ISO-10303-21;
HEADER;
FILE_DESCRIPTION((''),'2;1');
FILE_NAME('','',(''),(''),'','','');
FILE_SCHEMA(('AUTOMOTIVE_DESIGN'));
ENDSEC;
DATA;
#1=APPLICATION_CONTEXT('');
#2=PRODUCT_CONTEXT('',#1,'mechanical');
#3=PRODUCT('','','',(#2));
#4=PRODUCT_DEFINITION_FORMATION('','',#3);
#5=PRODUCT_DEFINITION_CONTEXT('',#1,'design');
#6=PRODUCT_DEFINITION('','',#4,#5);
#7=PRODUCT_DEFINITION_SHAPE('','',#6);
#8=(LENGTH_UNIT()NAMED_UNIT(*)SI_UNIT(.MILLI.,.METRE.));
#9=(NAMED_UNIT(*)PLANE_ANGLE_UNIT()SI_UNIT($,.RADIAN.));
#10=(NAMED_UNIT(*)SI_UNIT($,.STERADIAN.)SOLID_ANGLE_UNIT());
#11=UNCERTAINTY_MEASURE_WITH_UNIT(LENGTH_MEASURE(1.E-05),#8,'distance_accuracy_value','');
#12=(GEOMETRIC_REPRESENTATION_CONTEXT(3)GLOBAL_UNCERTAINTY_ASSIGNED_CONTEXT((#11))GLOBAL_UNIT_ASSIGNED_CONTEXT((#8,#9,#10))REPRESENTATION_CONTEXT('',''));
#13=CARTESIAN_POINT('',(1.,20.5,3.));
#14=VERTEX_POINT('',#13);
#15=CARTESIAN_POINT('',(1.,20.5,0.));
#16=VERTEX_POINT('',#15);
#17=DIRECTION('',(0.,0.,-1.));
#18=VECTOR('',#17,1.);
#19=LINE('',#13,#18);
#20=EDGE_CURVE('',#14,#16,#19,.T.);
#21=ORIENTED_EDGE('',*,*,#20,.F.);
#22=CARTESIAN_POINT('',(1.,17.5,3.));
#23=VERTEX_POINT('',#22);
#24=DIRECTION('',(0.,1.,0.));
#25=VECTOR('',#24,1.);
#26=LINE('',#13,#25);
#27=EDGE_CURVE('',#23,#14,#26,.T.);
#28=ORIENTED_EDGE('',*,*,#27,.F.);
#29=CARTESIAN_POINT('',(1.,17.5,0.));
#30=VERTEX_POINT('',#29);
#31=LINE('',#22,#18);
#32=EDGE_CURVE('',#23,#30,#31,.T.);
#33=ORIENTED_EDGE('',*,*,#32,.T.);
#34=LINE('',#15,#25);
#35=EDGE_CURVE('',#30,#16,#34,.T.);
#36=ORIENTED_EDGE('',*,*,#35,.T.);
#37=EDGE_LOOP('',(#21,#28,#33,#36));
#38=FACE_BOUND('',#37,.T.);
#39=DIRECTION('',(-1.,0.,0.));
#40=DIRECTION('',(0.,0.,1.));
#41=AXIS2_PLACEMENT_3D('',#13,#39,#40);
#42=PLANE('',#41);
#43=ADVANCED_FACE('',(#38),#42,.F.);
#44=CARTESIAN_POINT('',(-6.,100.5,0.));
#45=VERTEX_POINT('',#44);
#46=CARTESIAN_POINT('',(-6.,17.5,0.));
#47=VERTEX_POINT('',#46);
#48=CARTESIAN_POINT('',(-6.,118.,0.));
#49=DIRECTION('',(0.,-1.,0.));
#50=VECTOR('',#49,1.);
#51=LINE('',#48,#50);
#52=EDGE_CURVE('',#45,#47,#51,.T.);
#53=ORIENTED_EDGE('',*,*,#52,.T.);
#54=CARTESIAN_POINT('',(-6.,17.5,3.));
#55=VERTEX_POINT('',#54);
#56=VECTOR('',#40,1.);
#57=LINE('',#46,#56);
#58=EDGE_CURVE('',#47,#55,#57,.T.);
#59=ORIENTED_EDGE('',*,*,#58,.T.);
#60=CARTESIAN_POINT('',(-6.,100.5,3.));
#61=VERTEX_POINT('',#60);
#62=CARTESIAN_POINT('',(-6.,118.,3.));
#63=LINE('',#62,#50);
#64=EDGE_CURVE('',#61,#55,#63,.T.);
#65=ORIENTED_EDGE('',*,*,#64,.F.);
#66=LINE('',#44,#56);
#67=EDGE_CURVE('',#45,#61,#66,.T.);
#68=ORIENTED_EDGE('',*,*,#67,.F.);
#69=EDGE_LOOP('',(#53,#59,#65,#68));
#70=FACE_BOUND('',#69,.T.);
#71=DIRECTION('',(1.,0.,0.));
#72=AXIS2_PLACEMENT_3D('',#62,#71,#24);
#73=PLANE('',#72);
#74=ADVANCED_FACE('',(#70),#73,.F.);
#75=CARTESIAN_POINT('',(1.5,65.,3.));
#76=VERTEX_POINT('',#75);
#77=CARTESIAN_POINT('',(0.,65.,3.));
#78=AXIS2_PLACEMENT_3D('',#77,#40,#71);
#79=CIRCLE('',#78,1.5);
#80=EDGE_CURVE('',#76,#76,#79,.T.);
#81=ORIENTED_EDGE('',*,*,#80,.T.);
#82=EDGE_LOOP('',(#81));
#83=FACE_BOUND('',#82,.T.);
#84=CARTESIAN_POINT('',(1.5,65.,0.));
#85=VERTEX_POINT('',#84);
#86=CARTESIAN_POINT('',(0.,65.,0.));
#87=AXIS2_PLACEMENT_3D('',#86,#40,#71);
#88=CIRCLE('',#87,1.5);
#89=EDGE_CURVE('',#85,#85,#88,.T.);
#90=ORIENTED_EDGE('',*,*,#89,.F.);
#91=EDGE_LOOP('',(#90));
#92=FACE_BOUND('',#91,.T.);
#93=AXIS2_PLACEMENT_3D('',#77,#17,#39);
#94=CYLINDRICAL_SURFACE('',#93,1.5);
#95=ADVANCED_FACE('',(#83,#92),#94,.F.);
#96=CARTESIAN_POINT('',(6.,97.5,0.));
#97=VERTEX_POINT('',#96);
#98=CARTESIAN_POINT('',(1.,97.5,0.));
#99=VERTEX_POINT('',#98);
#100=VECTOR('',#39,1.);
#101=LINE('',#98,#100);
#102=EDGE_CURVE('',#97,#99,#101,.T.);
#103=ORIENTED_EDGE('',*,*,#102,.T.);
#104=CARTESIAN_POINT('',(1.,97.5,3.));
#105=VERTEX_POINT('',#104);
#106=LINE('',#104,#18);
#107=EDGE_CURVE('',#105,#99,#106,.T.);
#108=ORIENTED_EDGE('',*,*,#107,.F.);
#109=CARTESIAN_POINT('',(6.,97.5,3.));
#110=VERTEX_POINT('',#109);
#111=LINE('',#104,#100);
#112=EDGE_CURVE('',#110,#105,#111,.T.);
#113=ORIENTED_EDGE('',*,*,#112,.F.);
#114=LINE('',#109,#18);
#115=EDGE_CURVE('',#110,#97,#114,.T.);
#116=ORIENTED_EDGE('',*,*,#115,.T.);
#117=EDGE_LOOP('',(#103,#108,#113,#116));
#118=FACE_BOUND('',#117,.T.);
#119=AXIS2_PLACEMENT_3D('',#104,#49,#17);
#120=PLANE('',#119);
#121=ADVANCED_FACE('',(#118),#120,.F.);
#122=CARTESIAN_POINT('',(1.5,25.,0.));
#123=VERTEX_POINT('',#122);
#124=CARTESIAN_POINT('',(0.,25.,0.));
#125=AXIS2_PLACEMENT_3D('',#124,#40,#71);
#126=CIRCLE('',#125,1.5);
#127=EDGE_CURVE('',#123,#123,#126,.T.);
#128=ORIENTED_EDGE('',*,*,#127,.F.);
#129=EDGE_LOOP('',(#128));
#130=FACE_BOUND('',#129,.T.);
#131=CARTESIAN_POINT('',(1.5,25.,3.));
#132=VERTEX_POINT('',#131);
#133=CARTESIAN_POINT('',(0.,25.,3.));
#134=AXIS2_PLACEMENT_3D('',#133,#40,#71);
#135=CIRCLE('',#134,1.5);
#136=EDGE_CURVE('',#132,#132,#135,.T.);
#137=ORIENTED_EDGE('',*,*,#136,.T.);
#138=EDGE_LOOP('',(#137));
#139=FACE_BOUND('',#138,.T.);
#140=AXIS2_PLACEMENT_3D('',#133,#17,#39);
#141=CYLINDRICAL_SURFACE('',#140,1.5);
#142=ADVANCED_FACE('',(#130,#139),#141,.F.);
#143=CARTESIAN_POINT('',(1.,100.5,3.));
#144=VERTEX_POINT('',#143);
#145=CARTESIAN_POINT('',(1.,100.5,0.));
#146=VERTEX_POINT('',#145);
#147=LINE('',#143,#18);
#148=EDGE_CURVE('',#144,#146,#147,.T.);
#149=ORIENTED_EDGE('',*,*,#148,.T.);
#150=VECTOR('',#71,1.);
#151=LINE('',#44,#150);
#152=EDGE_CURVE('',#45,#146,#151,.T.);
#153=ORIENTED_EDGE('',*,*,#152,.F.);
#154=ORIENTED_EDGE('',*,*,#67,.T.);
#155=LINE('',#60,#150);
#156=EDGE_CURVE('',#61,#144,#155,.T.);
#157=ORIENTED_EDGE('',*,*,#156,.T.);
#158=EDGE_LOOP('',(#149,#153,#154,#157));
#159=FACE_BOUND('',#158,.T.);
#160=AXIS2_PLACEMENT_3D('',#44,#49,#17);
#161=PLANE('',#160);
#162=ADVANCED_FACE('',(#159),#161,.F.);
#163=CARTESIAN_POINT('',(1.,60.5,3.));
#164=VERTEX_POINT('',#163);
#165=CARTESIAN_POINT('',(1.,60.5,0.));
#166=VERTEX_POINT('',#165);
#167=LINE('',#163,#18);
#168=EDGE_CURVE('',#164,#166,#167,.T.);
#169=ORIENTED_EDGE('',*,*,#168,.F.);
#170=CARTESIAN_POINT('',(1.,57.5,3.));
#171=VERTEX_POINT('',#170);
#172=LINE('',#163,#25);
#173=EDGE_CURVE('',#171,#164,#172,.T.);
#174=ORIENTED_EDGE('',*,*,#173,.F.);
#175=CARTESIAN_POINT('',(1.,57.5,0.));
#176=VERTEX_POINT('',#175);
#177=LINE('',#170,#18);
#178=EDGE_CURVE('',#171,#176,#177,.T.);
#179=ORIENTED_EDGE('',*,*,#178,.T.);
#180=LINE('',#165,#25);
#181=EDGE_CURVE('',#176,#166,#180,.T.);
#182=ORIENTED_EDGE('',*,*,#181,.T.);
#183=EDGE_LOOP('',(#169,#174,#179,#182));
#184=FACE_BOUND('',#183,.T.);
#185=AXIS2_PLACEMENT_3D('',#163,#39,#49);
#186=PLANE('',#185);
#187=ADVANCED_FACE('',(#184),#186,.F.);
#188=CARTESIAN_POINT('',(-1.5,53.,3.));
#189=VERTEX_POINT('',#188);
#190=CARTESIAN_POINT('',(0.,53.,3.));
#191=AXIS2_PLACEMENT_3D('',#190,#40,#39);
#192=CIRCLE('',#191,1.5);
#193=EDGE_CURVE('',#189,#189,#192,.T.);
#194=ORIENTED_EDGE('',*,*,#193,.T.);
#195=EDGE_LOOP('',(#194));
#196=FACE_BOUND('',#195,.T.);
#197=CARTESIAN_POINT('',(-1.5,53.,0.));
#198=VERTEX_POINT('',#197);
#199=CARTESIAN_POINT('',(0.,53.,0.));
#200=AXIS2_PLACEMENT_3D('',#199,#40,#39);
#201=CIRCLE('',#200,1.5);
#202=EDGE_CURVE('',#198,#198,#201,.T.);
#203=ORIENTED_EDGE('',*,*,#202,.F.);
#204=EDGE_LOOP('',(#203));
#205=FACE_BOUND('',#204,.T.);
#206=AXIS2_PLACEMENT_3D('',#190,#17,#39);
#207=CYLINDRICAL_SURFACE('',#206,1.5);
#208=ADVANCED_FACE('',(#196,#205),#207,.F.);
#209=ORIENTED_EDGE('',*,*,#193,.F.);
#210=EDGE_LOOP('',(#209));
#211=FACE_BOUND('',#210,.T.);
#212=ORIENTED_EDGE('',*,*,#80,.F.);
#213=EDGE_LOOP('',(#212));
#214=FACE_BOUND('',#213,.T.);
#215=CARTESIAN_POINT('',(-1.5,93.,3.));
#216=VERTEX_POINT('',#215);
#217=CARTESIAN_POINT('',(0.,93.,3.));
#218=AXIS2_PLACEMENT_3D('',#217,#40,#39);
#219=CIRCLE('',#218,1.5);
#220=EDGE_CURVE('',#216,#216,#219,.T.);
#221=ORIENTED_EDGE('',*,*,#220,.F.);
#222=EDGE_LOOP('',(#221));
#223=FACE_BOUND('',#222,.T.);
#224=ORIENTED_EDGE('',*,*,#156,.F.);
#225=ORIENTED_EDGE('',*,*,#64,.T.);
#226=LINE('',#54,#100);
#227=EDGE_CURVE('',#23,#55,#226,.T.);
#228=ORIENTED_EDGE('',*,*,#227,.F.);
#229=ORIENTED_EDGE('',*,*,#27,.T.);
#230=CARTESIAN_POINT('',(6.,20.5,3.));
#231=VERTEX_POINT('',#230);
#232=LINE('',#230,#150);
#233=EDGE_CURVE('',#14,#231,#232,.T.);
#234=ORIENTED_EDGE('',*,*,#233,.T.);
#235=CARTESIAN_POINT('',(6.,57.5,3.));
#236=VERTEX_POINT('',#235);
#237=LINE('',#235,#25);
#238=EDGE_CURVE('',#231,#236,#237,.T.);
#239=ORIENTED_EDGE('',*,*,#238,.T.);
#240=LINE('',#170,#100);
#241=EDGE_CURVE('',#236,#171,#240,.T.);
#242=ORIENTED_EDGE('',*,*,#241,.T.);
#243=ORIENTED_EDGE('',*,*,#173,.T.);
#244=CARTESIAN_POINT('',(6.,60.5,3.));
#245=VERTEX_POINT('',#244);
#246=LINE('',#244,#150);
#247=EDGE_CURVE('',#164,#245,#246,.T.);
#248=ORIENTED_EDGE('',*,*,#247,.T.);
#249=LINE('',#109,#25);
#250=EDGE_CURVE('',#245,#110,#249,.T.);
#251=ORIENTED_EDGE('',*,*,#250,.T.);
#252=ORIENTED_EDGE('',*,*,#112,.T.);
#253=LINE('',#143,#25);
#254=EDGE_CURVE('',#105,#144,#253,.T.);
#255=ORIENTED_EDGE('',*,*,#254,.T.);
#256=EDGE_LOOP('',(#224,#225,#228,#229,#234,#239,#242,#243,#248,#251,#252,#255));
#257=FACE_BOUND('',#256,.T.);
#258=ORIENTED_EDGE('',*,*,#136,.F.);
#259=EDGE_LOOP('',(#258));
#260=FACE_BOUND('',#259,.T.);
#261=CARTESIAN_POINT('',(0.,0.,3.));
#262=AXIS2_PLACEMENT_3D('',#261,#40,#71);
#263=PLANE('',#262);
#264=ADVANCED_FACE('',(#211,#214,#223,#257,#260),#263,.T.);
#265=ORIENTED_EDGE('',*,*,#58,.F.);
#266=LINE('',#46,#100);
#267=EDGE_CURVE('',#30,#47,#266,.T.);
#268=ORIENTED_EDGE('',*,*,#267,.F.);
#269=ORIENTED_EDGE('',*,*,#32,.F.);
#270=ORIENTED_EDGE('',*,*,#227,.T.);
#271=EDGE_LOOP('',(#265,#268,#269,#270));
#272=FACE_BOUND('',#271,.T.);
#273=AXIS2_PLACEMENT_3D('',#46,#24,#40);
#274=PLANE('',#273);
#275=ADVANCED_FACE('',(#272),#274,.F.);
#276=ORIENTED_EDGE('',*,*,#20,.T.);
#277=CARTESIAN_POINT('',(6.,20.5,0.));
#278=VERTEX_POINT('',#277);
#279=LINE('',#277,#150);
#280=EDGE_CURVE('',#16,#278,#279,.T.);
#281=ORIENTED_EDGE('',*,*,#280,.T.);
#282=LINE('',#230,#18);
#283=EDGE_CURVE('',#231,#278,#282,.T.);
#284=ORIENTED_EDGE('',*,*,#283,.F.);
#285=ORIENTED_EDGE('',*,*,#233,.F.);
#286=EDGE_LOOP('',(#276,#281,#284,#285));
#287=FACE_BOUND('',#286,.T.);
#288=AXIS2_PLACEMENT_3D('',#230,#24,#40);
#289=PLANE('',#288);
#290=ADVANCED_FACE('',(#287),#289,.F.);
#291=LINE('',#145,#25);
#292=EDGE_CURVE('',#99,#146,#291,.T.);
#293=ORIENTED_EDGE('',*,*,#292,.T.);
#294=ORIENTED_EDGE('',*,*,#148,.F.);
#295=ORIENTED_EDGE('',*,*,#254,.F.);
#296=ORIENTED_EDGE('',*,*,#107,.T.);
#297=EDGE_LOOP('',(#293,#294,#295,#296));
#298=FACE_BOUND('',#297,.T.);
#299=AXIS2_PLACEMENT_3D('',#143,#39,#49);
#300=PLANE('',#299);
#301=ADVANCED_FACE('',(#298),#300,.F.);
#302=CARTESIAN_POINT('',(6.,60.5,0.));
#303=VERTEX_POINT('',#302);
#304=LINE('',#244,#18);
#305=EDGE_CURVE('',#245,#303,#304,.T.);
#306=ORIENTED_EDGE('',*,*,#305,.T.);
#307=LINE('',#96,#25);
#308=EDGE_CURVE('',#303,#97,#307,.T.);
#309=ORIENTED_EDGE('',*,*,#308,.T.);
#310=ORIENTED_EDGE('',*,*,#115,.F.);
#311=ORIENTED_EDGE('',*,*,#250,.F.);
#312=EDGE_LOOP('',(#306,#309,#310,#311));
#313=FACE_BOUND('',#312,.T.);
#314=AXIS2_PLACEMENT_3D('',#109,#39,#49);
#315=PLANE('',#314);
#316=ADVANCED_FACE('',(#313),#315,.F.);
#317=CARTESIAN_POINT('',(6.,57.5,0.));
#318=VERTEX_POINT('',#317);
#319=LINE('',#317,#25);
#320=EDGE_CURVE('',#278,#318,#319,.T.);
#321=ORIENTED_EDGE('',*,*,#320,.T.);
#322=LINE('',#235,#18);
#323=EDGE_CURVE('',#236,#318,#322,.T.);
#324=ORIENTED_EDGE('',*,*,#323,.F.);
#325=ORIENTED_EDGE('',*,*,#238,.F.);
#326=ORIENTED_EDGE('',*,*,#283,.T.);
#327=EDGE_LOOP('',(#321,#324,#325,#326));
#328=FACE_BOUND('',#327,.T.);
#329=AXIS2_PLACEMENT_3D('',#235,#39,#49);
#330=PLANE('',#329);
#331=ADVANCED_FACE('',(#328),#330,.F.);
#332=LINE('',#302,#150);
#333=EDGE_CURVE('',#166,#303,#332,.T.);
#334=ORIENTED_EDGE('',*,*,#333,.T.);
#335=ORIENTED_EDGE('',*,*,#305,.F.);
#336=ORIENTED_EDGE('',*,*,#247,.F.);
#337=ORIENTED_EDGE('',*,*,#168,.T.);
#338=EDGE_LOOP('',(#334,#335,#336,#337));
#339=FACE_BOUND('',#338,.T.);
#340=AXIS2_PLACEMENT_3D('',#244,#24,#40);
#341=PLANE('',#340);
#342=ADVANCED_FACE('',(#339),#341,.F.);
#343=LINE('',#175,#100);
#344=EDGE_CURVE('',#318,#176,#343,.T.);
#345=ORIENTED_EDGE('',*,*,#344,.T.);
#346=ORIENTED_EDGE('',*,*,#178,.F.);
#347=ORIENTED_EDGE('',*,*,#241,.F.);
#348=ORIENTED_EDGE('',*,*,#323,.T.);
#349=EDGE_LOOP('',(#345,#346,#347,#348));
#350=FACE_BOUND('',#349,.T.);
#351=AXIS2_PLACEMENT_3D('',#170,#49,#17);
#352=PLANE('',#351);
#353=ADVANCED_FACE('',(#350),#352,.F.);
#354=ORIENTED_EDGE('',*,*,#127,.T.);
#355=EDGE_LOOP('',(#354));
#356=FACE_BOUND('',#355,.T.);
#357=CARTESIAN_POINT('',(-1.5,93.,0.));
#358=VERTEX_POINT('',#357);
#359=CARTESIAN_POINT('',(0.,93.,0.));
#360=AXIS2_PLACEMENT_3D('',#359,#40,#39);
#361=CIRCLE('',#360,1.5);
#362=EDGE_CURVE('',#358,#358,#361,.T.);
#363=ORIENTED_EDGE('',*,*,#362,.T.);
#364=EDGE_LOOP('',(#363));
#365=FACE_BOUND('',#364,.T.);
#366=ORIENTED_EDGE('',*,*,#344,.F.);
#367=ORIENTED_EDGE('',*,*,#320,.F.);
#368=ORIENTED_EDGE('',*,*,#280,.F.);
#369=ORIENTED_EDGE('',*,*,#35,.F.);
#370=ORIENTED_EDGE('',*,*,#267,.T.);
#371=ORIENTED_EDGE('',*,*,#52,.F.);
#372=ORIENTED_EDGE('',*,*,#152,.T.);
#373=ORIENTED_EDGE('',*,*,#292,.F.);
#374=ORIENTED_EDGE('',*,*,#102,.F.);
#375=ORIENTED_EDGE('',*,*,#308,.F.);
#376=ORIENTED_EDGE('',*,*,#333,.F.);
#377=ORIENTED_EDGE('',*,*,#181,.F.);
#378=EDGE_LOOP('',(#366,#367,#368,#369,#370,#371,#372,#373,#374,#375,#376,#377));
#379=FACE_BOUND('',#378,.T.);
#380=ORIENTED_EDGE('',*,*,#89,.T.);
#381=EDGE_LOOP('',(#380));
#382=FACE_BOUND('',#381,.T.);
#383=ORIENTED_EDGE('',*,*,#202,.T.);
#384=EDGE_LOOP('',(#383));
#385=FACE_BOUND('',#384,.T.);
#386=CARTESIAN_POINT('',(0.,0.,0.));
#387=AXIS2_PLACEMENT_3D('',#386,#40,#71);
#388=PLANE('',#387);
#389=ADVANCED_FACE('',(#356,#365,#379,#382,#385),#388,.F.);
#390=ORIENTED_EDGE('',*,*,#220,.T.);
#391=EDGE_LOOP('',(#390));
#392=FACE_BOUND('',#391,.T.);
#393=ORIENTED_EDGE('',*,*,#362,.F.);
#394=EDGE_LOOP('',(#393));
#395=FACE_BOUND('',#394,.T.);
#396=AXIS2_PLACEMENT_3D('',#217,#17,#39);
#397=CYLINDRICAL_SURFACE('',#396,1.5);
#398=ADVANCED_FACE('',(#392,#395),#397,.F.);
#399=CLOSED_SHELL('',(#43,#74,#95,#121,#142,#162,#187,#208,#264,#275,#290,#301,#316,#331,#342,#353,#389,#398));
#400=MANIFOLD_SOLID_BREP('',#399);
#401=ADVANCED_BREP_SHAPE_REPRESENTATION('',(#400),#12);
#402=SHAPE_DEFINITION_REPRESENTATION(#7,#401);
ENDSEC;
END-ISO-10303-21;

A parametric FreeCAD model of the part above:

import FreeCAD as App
import Part
import Sketcher

doc = App.newDocument("Part")
params = doc.addObject("Spreadsheet::Sheet", "Params")
for row, (alias, value) in enumerate([
    ("sketch1_diameter", "3 mm"),
    ("sketch1_width", "12 mm"),
    ("sketch1_width2", "5 mm"),
    ("sketch1_height", "3 mm"),
    ("sketch1_height2", "37 mm"),
    ("pad1_length", "3 mm"),
    ("sketch2_width", "12 mm"),
    ("sketch2_height", "17.5 mm"),
], start=1):
    params.set(f"A{row}", alias)
    params.set(f"B{row}", "=" + value)
    params.setAlias(f"B{row}", alias)

body = doc.addObject("PartDesign::Body", "Body")

sketch1 = doc.addObject("Sketcher::SketchObject", "Sketch")
body.addObject(sketch1)
sketch1.AttachmentSupport = (doc.XY_Plane, [""])
sketch1.MapMode = "FlatFace"
sketch1.addGeometry([
    Part.LineSegment(App.Vector(-6, 0, 0), App.Vector(6, 0, 0)),
    Part.LineSegment(App.Vector(6, 0, 0), App.Vector(6, 17.5, 0)),
    Part.LineSegment(App.Vector(6, 17.5, 0), App.Vector(1, 17.5, 0)),
    Part.LineSegment(App.Vector(1, 17.5, 0), App.Vector(1, 20.5, 0)),
    Part.LineSegment(App.Vector(1, 20.5, 0), App.Vector(6, 20.5, 0)),
    Part.LineSegment(App.Vector(6, 20.5, 0), App.Vector(6, 57.5, 0)),
    Part.LineSegment(App.Vector(6, 57.5, 0), App.Vector(1, 57.5, 0)),
    Part.LineSegment(App.Vector(1, 57.5, 0), App.Vector(1, 60.5, 0)),
    Part.LineSegment(App.Vector(1, 60.5, 0), App.Vector(6, 60.5, 0)),
    Part.LineSegment(App.Vector(6, 60.5, 0), App.Vector(6, 97.5, 0)),
    Part.LineSegment(App.Vector(6, 97.5, 0), App.Vector(1, 97.5, 0)),
    Part.LineSegment(App.Vector(1, 97.5, 0), App.Vector(1, 100.5, 0)),
    Part.LineSegment(App.Vector(1, 100.5, 0), App.Vector(6, 100.5, 0)),
    Part.LineSegment(App.Vector(6, 100.5, 0), App.Vector(6, 118, 0)),
    Part.LineSegment(App.Vector(6, 118, 0), App.Vector(-6, 118, 0)),
    Part.LineSegment(App.Vector(-6, 118, 0), App.Vector(-6, 0, 0)),
    Part.Circle(App.Vector(0, 13, 0), App.Vector(0, 0, 1), 1.5),
    Part.Circle(App.Vector(0, 25, 0), App.Vector(0, 0, 1), 1.5),
    Part.Circle(App.Vector(0, 53, 0), App.Vector(0, 0, 1), 1.5),
    Part.Circle(App.Vector(0, 65, 0), App.Vector(0, 0, 1), 1.5),
    Part.Circle(App.Vector(0, 93, 0), App.Vector(0, 0, 1), 1.5),
    Part.Circle(App.Vector(0, 105, 0), App.Vector(0, 0, 1), 1.5),
], False)
sketch1.addConstraint([
    Sketcher.Constraint("Coincident", 0, 2, 1, 1),
    Sketcher.Constraint("Coincident", 1, 2, 2, 1),
    Sketcher.Constraint("Coincident", 2, 2, 3, 1),
    Sketcher.Constraint("Coincident", 3, 2, 4, 1),
    Sketcher.Constraint("Coincident", 4, 2, 5, 1),
    Sketcher.Constraint("Coincident", 5, 2, 6, 1),
    Sketcher.Constraint("Coincident", 6, 2, 7, 1),
    Sketcher.Constraint("Coincident", 7, 2, 8, 1),
    Sketcher.Constraint("Coincident", 8, 2, 9, 1),
    Sketcher.Constraint("Coincident", 9, 2, 10, 1),
    Sketcher.Constraint("Coincident", 10, 2, 11, 1),
    Sketcher.Constraint("Coincident", 11, 2, 12, 1),
    Sketcher.Constraint("Coincident", 12, 2, 13, 1),
    Sketcher.Constraint("Coincident", 13, 2, 14, 1),
    Sketcher.Constraint("Coincident", 14, 2, 15, 1),
    Sketcher.Constraint("Coincident", 15, 2, 0, 1),
    Sketcher.Constraint("Horizontal", 0),
    Sketcher.Constraint("Vertical", 1),
    Sketcher.Constraint("Horizontal", 2),
    Sketcher.Constraint("Vertical", 3),
    Sketcher.Constraint("Horizontal", 4),
    Sketcher.Constraint("Vertical", 5),
    Sketcher.Constraint("Horizontal", 6),
    Sketcher.Constraint("Vertical", 7),
    Sketcher.Constraint("Horizontal", 8),
    Sketcher.Constraint("Vertical", 9),
    Sketcher.Constraint("Horizontal", 10),
    Sketcher.Constraint("Vertical", 11),
    Sketcher.Constraint("Horizontal", 12),
    Sketcher.Constraint("Vertical", 13),
    Sketcher.Constraint("Horizontal", 14),
    Sketcher.Constraint("Vertical", 15),
    Sketcher.Constraint("Equal", 16, 17),
    Sketcher.Constraint("Equal", 17, 18),
    Sketcher.Constraint("Equal", 18, 19),
    Sketcher.Constraint("Equal", 19, 20),
    Sketcher.Constraint("Equal", 20, 21),
    Sketcher.Constraint("Symmetric", 0, 2, 15, 2, -1, 1),
    Sketcher.Constraint("PointOnObject", 16, 3, -2),
    Sketcher.Constraint("PointOnObject", 17, 3, -2),
    Sketcher.Constraint("PointOnObject", 18, 3, -2),
    Sketcher.Constraint("PointOnObject", 19, 3, -2),
    Sketcher.Constraint("PointOnObject", 20, 3, -2),
    Sketcher.Constraint("PointOnObject", 21, 3, -2),
    Sketcher.Constraint("Vertical", 1, 2, 4, 2),
    Sketcher.Constraint("Vertical", 3, 2, 6, 2),
    Sketcher.Constraint("Vertical", 5, 2, 8, 2),
    Sketcher.Constraint("Vertical", 7, 2, 10, 2),
    Sketcher.Constraint("Vertical", 9, 2, 12, 2),
    Sketcher.Constraint("Equal", 3, 7),
    Sketcher.Constraint("Equal", 5, 9),
    Sketcher.Constraint("Equal", 7, 11),
    Sketcher.Constraint("Equal", 1, 13),
    Sketcher.Constraint("Diameter", 16, 3.0),
    Sketcher.Constraint("DistanceX", 0, 1, 0, 2, 12.0),
    Sketcher.Constraint("DistanceX", 2, 2, 2, 1, 5.0),
    Sketcher.Constraint("DistanceY", 3, 1, 3, 2, 3.0),
    Sketcher.Constraint("DistanceY", 5, 1, 5, 2, 37.0),
    Sketcher.Constraint("DistanceY", 15, 2, 15, 1, 118.0),
    Sketcher.Constraint("DistanceY", -1, 1, 16, 3, 13.0),
    Sketcher.Constraint("DistanceY", -1, 1, 17, 3, 25.0),
    Sketcher.Constraint("DistanceY", -1, 1, 18, 3, 53.0),
    Sketcher.Constraint("DistanceY", -1, 1, 19, 3, 65.0),
    Sketcher.Constraint("DistanceY", -1, 1, 20, 3, 93.0),
    Sketcher.Constraint("DistanceY", -1, 1, 21, 3, 105.0),
])
sketch1.setExpression("Constraints[53]", "Params.sketch1_diameter")
sketch1.setExpression("Constraints[54]", "Params.sketch1_width")
sketch1.setExpression("Constraints[55]", "Params.sketch1_width2")
sketch1.setExpression("Constraints[56]", "Params.sketch1_height")
sketch1.setExpression("Constraints[57]", "Params.sketch1_height2")
pad1 = doc.addObject("PartDesign::Pad", "Pad")
body.addObject(pad1)
pad1.Profile = sketch1
pad1.setExpression("Length", "Params.pad1_length")

sketch2 = doc.addObject("Sketcher::SketchObject", "Sketch001")
body.addObject(sketch2)
sketch2.AttachmentSupport = (doc.XY_Plane, [""])
sketch2.MapMode = "FlatFace"
sketch2.AttachmentOffset = App.Placement(App.Vector(0, 0, 3), App.Rotation())
sketch2.addGeometry([
    Part.LineSegment(App.Vector(-6, 118, 0), App.Vector(-6, 100.5, 0)),
    Part.LineSegment(App.Vector(-6, 100.5, 0), App.Vector(6, 100.5, 0)),
    Part.LineSegment(App.Vector(6, 100.5, 0), App.Vector(6, 118, 0)),
    Part.LineSegment(App.Vector(6, 118, 0), App.Vector(-6, 118, 0)),
    Part.LineSegment(App.Vector(-6, 17.5, 0), App.Vector(-6, 0, 0)),
    Part.LineSegment(App.Vector(-6, 0, 0), App.Vector(6, 0, 0)),
    Part.LineSegment(App.Vector(6, 0, 0), App.Vector(6, 17.5, 0)),
    Part.LineSegment(App.Vector(6, 17.5, 0), App.Vector(-6, 17.5, 0)),
], False)
sketch2.addConstraint([
    Sketcher.Constraint("Coincident", 0, 2, 1, 1),
    Sketcher.Constraint("Coincident", 1, 2, 2, 1),
    Sketcher.Constraint("Coincident", 2, 2, 3, 1),
    Sketcher.Constraint("Coincident", 3, 2, 0, 1),
    Sketcher.Constraint("Coincident", 4, 2, 5, 1),
    Sketcher.Constraint("Coincident", 5, 2, 6, 1),
    Sketcher.Constraint("Coincident", 6, 2, 7, 1),
    Sketcher.Constraint("Coincident", 7, 2, 4, 1),
    Sketcher.Constraint("Vertical", 0),
    Sketcher.Constraint("Horizontal", 1),
    Sketcher.Constraint("Vertical", 2),
    Sketcher.Constraint("Horizontal", 3),
    Sketcher.Constraint("Vertical", 4),
    Sketcher.Constraint("Horizontal", 5),
    Sketcher.Constraint("Vertical", 6),
    Sketcher.Constraint("Horizontal", 7),
    Sketcher.Constraint("Symmetric", 4, 2, 5, 2, -1, 1),
    Sketcher.Constraint("Vertical", 3, 2, 4, 2),
    Sketcher.Constraint("Vertical", 2, 2, 5, 2),
    Sketcher.Constraint("Equal", 2, 4),
    Sketcher.Constraint("DistanceX", 1, 1, 1, 2, 12.0),
    Sketcher.Constraint("DistanceY", 0, 2, 0, 1, 17.5),
    Sketcher.Constraint("DistanceY", -1, 1, 2, 2, 118.0),
])
sketch2.setExpression("Constraints[20]", "Params.sketch2_width")
sketch2.setExpression("Constraints[21]", "Params.sketch2_height")
pocket1 = doc.addObject("PartDesign::Pocket", "Pocket")
body.addObject(pocket1)
pocket1.Profile = sketch2
pocket1.Type = "ThroughAll"

doc.recompute()
